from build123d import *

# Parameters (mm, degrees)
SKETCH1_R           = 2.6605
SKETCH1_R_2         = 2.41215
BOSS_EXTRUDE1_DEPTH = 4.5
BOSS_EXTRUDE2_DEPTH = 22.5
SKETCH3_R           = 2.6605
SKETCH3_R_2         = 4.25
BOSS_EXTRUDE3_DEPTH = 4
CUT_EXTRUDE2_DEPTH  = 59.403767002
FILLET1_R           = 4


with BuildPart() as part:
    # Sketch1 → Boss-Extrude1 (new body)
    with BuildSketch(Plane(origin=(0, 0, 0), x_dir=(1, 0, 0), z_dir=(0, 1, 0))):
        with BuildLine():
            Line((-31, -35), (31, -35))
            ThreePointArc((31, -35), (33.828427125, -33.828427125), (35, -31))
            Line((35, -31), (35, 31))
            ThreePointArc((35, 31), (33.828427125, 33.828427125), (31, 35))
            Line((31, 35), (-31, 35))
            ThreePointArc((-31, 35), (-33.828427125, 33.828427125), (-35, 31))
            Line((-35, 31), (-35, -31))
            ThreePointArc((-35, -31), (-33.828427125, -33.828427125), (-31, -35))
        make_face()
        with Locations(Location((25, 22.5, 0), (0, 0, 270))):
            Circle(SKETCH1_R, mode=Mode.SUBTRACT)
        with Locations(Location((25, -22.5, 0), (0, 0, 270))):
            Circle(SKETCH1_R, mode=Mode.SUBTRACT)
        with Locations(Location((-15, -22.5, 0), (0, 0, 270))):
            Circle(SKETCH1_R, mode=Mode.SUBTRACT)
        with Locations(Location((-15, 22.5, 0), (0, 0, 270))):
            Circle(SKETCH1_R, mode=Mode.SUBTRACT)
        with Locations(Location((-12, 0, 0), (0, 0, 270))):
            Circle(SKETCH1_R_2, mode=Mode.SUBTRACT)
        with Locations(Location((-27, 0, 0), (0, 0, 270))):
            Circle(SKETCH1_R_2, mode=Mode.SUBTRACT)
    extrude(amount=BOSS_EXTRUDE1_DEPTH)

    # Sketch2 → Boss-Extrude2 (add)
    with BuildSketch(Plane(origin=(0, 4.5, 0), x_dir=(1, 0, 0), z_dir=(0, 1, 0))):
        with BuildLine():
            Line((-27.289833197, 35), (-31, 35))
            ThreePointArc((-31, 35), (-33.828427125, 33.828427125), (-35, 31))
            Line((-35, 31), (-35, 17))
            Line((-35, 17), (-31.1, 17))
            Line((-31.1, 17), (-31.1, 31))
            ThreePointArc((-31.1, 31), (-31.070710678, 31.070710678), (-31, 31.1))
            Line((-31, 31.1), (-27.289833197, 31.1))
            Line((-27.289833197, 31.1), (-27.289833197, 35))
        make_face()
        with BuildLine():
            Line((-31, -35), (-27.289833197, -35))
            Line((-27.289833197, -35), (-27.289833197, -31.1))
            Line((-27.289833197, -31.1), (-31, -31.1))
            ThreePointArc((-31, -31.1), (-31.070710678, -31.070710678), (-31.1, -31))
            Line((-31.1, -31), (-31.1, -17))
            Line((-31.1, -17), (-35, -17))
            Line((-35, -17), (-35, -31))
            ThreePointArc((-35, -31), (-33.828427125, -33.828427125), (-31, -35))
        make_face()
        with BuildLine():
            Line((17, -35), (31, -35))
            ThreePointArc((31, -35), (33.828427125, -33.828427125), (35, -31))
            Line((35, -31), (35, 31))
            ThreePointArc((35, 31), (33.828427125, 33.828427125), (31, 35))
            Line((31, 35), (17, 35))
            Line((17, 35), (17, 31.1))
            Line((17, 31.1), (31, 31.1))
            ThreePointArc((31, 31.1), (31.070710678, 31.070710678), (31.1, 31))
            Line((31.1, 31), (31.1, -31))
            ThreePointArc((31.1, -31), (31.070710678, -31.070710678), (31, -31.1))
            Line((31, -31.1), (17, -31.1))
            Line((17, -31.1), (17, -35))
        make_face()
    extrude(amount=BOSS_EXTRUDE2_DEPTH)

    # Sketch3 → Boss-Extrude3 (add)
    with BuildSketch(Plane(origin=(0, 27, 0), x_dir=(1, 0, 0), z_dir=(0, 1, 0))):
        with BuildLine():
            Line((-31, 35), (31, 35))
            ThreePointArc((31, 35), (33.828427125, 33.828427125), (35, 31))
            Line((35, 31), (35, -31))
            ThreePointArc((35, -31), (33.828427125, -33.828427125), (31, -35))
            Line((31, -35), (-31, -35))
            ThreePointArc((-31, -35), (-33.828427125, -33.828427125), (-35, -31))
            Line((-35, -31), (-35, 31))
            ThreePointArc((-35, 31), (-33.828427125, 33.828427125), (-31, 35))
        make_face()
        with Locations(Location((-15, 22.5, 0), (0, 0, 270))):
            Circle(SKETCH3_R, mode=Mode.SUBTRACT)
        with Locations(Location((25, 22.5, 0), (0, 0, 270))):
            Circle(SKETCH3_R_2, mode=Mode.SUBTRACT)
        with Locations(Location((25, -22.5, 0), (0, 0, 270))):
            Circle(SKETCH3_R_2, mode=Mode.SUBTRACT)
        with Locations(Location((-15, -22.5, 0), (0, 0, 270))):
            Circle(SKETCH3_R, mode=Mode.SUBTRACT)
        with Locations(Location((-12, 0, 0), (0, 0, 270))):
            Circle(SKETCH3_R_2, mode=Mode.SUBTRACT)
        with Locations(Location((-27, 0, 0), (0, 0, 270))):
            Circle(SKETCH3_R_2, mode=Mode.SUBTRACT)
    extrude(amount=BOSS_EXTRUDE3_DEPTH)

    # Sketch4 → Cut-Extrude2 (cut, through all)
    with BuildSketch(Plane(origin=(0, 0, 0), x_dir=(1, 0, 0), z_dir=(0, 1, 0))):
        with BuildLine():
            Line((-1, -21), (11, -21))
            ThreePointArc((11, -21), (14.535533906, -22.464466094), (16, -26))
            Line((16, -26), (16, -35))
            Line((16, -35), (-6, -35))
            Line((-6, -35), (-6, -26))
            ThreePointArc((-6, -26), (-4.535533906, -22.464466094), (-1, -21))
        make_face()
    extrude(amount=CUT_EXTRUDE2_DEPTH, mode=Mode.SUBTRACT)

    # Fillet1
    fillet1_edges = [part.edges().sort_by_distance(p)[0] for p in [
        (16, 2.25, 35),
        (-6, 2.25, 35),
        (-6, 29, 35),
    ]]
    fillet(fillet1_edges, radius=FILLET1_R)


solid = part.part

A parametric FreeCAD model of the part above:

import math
import FreeCAD as App
import Part
import Sketcher
from FreeCAD import Vector


def edges_at(feature, points):
    """Names of the edges that pass closest to the given points."""
    edges = feature.Shape.Edges
    near = lambda p: min(range(len(edges)), key=lambda i: edges[i].distToShape(Part.Vertex(*p))[0])
    return sorted({f"Edge{near(p) + 1}" for p in points})

doc = App.newDocument("Part")
body = doc.addObject("PartDesign::Body", "Body")

# Sketch on XZ plane
sketch1 = body.newObject("Sketcher::SketchObject", "Sketch")
sketch1.AttachmentSupport = (doc.getObject("XZ_Plane"), [""])
sketch1.MapMode = "FlatFace"
sketch1.addGeometry(Part.LineSegment(Vector(-31, 35, 0), Vector(31, 35, 0)), False)
sketch1.addGeometry(Part.ArcOfCircle(Part.Circle(Vector(31, 31, 0), Vector(0, 0, 1), 4), math.radians(0), math.radians(90)), False)
sketch1.addGeometry(Part.LineSegment(Vector(35, 31, 0), Vector(35, -31, 0)), False)
sketch1.addGeometry(Part.ArcOfCircle(Part.Circle(Vector(31, -31, 0), Vector(0, 0, 1), 4), math.radians(-90), math.radians(0)), False)
sketch1.addGeometry(Part.LineSegment(Vector(31, -35, 0), Vector(-31, -35, 0)), False)
sketch1.addGeometry(Part.ArcOfCircle(Part.Circle(Vector(-31, -31, 0), Vector(0, 0, 1), 4), math.radians(180), math.radians(270)), False)
sketch1.addGeometry(Part.LineSegment(Vector(-35, -31, 0), Vector(-35, 31, 0)), False)
sketch1.addGeometry(Part.ArcOfCircle(Part.Circle(Vector(-31, 31, 0), Vector(0, 0, 1), 4), math.radians(90), math.radians(180)), False)
sketch1.addGeometry(Part.Circle(Vector(-15, 22.5, 0), Vector(0, 0, 1), 2.7), False)
sketch1.addGeometry(Part.Circle(Vector(25, 22.5, 0), Vector(0, 0, 1), 2.7), False)
sketch1.addGeometry(Part.Circle(Vector(-27, 0, 0), Vector(0, 0, 1), 2.4), False)
sketch1.addGeometry(Part.Circle(Vector(-12, 0, 0), Vector(0, 0, 1), 2.4), False)
sketch1.addGeometry(Part.Circle(Vector(-15, -22.5, 0), Vector(0, 0, 1), 2.7), False)
sketch1.addGeometry(Part.Circle(Vector(25, -22.5, 0), Vector(0, 0, 1), 2.7), False)
sketch1.addConstraint(Sketcher.Constraint("Tangent", 0, 2, 1, 2))
sketch1.addConstraint(Sketcher.Constraint("Tangent", 1, 1, 2, 1))
sketch1.addConstraint(Sketcher.Constraint("Tangent", 2, 2, 3, 2))
sketch1.addConstraint(Sketcher.Constraint("Tangent", 3, 1, 4, 1))
sketch1.addConstraint(Sketcher.Constraint("Tangent", 4, 2, 5, 2))
sketch1.addConstraint(Sketcher.Constraint("Tangent", 5, 1, 6, 1))
sketch1.addConstraint(Sketcher.Constraint("Tangent", 6, 2, 7, 2))
sketch1.addConstraint(Sketcher.Constraint("Tangent", 7, 1, 0, 1))
sketch1.addConstraint(Sketcher.Constraint("Horizontal", 0))
sketch1.addConstraint(Sketcher.Constraint("Vertical", 2))
sketch1.addConstraint(Sketcher.Constraint("Horizontal", 4))
sketch1.addConstraint(Sketcher.Constraint("Vertical", 6))
sketch1.addConstraint(Sketcher.Constraint("Equal", 1, 3))
sketch1.addConstraint(Sketcher.Constraint("Equal", 3, 5))
sketch1.addConstraint(Sketcher.Constraint("Equal", 5, 7))
sketch1.addConstraint(Sketcher.Constraint("Equal", 8, 9))
sketch1.addConstraint(Sketcher.Constraint("Equal", 10, 11))
sketch1.addConstraint(Sketcher.Constraint("Equal", 9, 12))
sketch1.addConstraint(Sketcher.Constraint("Equal", 12, 13))
sketch1.addConstraint(Sketcher.Constraint("Symmetric", 1, 3, 5, 3, -1, 1))
sketch1.addConstraint(Sketcher.Constraint("Symmetric", 8, 3, 12, 3, -1))
sketch1.addConstraint(Sketcher.Constraint("Symmetric", 9, 3, 13, 3, -1))
sketch1.addConstraint(Sketcher.Constraint("PointOnObject", 10, 3, -1))
sketch1.addConstraint(Sketcher.Constraint("PointOnObject", 11, 3, -1))
sketch1.addConstraint(Sketcher.Constraint("Horizontal", 8, 3, 9, 3))
sketch1.addConstraint(Sketcher.Constraint("Equal", 4, 2))
sketch1.addConstraint(Sketcher.Constraint("Radius", 1, 4.0))
sketch1.addConstraint(Sketcher.Constraint("DistanceX", 0, 1, 0, 2, 62.0))
sketch1.addConstraint(Sketcher.Constraint("Diameter", 8, 5.321))
sketch1.addConstraint(Sketcher.Constraint("DistanceX", 8, 3, -1, 1, 15.0))
sketch1.addConstraint(Sketcher.Constraint("DistanceX", -1, 1, 9, 3, 25.0))
sketch1.addConstraint(Sketcher.Constraint("DistanceX", 10, 3, -1, 1, 27.0))
sketch1.addConstraint(Sketcher.Constraint("DistanceX", 11, 3, -1, 1, 12.0))
sketch1.addConstraint(Sketcher.Constraint("DistanceY", 12, 3, 8, 3, 45.0))
sketch1.addConstraint(Sketcher.Constraint("Diameter", 10, 4.8243))
pad1 = body.newObject("PartDesign::Pad", "Pad")
pad1.Profile = sketch1
pad1.Length = 4.5
pad1.Reversed = True

# Sketch on XZ plane
sketch2 = body.newObject("Sketcher::SketchObject", "Sketch001")
sketch2.AttachmentSupport = (doc.getObject("XZ_Plane"), [""])
sketch2.MapMode = "FlatFace"
sketch2.AttachmentOffset = App.Placement(Vector(0, 0, -4.5), App.Rotation())
sketch2.addGeometry(Part.LineSegment(Vector(-27.29, -35, 0), Vector(-31, -35, 0)), False)
sketch2.addGeometry(Part.ArcOfCircle(Part.Circle(Vector(-31, -31, 0), Vector(0, 0, 1), 4), math.radians(180), math.radians(270)), False)
sketch2.addGeometry(Part.LineSegment(Vector(-35, -31, 0), Vector(-35, -17, 0)), False)
sketch2.addGeometry(Part.LineSegment(Vector(-35, -17, 0), Vector(-31.1, -17, 0)), False)
sketch2.addGeometry(Part.LineSegment(Vector(-31.1, -17, 0), Vector(-31.1, -31, 0)), False)
sketch2.addGeometry(Part.ArcOfCircle(Part.Circle(Vector(-31, -31, 0), Vector(0, 0, 1), 0.1), math.radians(180), math.radians(270)), False)
sketch2.addGeometry(Part.LineSegment(Vector(-31, -31.1, 0), Vector(-27.29, -31.1, 0)), False)
sketch2.addGeometry(Part.LineSegment(Vector(-27.29, -31.1, 0), Vector(-27.29, -35, 0)), False)
sketch2.addGeometry(Part.LineSegment(Vector(-31, 35, 0), Vector(-27.29, 35, 0)), False)
sketch2.addGeometry(Part.LineSegment(Vector(-27.29, 35, 0), Vector(-27.29, 31.1, 0)), False)
sketch2.addGeometry(Part.LineSegment(Vector(-27.29, 31.1, 0), Vector(-31, 31.1, 0)), False)
sketch2.addGeometry(Part.ArcOfCircle(Part.Circle(Vector(-31, 31, 0), Vector(0, 0, 1), 0.1), math.radians(90), math.radians(180)), False)
sketch2.addGeometry(Part.LineSegment(Vector(-31.1, 31, 0), Vector(-31.1, 17, 0)), False)
sketch2.addGeometry(Part.LineSegment(Vector(-31.1, 17, 0), Vector(-35, 17, 0)), False)
sketch2.addGeometry(Part.LineSegment(Vector(-35, 17, 0), Vector(-35, 31, 0)), False)
sketch2.addGeometry(Part.ArcOfCircle(Part.Circle(Vector(-31, 31, 0), Vector(0, 0, 1), 4), math.radians(90), math.radians(180)), False)
sketch2.addGeometry(Part.LineSegment(Vector(17, 35, 0), Vector(31, 35, 0)), False)
sketch2.addGeometry(Part.ArcOfCircle(Part.Circle(Vector(31, 31, 0), Vector(0, 0, 1), 4), math.radians(0), math.radians(90)), False)
sketch2.addGeometry(Part.LineSegment(Vector(35, 31, 0), Vector(35, -31, 0)), False)
sketch2.addGeometry(Part.ArcOfCircle(Part.Circle(Vector(31, -31, 0), Vector(0, 0, 1), 4), math.radians(-90), math.radians(0)), False)
sketch2.addGeometry(Part.LineSegment(Vector(31, -35, 0), Vector(17, -35, 0)), False)
sketch2.addGeometry(Part.LineSegment(Vector(17, -35, 0), Vector(17, -31.1, 0)), False)
sketch2.addGeometry(Part.LineSegment(Vector(17, -31.1, 0), Vector(31, -31.1, 0)), False)
sketch2.addGeometry(Part.ArcOfCircle(Part.Circle(Vector(31, -31, 0), Vector(0, 0, 1), 0.1), math.radians(-90), math.radians(0)), False)
sketch2.addGeometry(Part.LineSegment(Vector(31.1, -31, 0), Vector(31.1, 31, 0)), False)
sketch2.addGeometry(Part.ArcOfCircle(Part.Circle(Vector(31, 31, 0), Vector(0, 0, 1), 0.1), math.radians(0), math.radians(90)), False)
sketch2.addGeometry(Part.LineSegment(Vector(31, 31.1, 0), Vector(17, 31.1, 0)), False)
sketch2.addGeometry(Part.LineSegment(Vector(17, 31.1, 0), Vector(17, 35, 0)), False)
sketch2.addConstraint(Sketcher.Constraint("Tangent", 0, 2, 1, 2))
sketch2.addConstraint(Sketcher.Constraint("Tangent", 1, 1, 2, 1))
sketch2.addConstraint(Sketcher.Constraint("Coincident", 2, 2, 3, 1))
sketch2.addConstraint(Sketcher.Constraint("Coincident", 3, 2, 4, 1))
sketch2.addConstraint(Sketcher.Constraint("Tangent", 4, 2, 5, 1))
sketch2.addConstraint(Sketcher.Constraint("Tangent", 5, 2, 6, 1))
sketch2.addConstraint(Sketcher.Constraint("Coincident", 6, 2, 7, 1))
sketch2.addConstraint(Sketcher.Constraint("Coincident", 7, 2, 0, 1))
sketch2.addConstraint(Sketcher.Constraint("Coincident", 8, 2, 9, 1))
sketch2.addConstraint(Sketcher.Constraint("Coincident", 9, 2, 10, 1))
sketch2.addConstraint(Sketcher.Constraint("Tangent", 10, 2, 11, 1))
sketch2.addConstraint(Sketcher.Constraint("Tangent", 11, 2, 12, 1))
sketch2.addConstraint(Sketcher.Constraint("Coincident", 12, 2, 13, 1))
sketch2.addConstraint(Sketcher.Constraint("Coincident", 13, 2, 14, 1))
sketch2.addConstraint(Sketcher.Constraint("Tangent", 14, 2, 15, 2))
sketch2.addConstraint(Sketcher.Constraint("Tangent", 15, 1, 8, 1))
sketch2.addConstraint(Sketcher.Constraint("Tangent", 16, 2, 17, 2))
sketch2.addConstraint(Sketcher.Constraint("Tangent", 17, 1, 18, 1))
sketch2.addConstraint(Sketcher.Constraint("Tangent", 18, 2, 19, 2))
sketch2.addConstraint(Sketcher.Constraint("Tangent", 19, 1, 20, 1))
sketch2.addConstraint(Sketcher.Constraint("Coincident", 20, 2, 21, 1))
sketch2.addConstraint(Sketcher.Constraint("Coincident", 21, 2, 22, 1))
sketch2.addConstraint(Sketcher.Constraint("Tangent", 22, 2, 23, 1))
sketch2.addConstraint(Sketcher.Constraint("Tangent", 23, 2, 24, 1))
sketch2.addConstraint(Sketcher.Constraint("Tangent", 24, 2, 25, 1))
sketch2.addConstraint(Sketcher.Constraint("Tangent", 25, 2, 26, 1))
sketch2.addConstraint(Sketcher.Constraint("Coincident", 26, 2, 27, 1))
sketch2.addConstraint(Sketcher.Constraint("Coincident", 27, 2, 16, 1))
sketch2.addConstraint(Sketcher.Constraint("Horizontal", 0))
sketch2.addConstraint(Sketcher.Constraint("Vertical", 2))
sketch2.addConstraint(Sketcher.Constraint("Horizontal", 3))
sketch2.addConstraint(Sketcher.Constraint("Vertical", 4))
sketch2.addConstraint(Sketcher.Constraint("Horizontal", 6))
sketch2.addConstraint(Sketcher.Constraint("Vertical", 7))
sketch2.addConstraint(Sketcher.Constraint("Horizontal", 8))
sketch2.addConstraint(Sketcher.Constraint("Vertical", 9))
sketch2.addConstraint(Sketcher.Constraint("Horizontal", 10))
sketch2.addConstraint(Sketcher.Constraint("Vertical", 12))
sketch2.addConstraint(Sketcher.Constraint("Horizontal", 13))
sketch2.addConstraint(Sketcher.Constraint("Vertical", 14))
sketch2.addConstraint(Sketcher.Constraint("Horizontal", 16))
sketch2.addConstraint(Sketcher.Constraint("Vertical", 18))
sketch2.addConstraint(Sketcher.Constraint("Horizontal", 20))
sketch2.addConstraint(Sketcher.Constraint("Vertical", 21))
sketch2.addConstraint(Sketcher.Constraint("Horizontal", 22))
sketch2.addConstraint(Sketcher.Constraint("Vertical", 24))
sketch2.addConstraint(Sketcher.Constraint("Horizontal", 26))
sketch2.addConstraint(Sketcher.Constraint("Vertical", 27))
sketch2.addConstraint(Sketcher.Constraint("Coincident", 5, 3, 1, 3))
sketch2.addConstraint(Sketcher.Constraint("Coincident", 15, 3, 11, 3))
sketch2.addConstraint(Sketcher.Constraint("Coincident", 23, 3, 19, 3))
sketch2.addConstraint(Sketcher.Constraint("Coincident", 25, 3, 17, 3))
sketch2.addConstraint(Sketcher.Constraint("Equal", 5, 11))
sketch2.addConstraint(Sketcher.Constraint("Equal", 1, 15))
sketch2.addConstraint(Sketcher.Constraint("Equal", 15, 17))
sketch2.addConstraint(Sketcher.Constraint("Equal", 17, 19))
sketch2.addConstraint(Sketcher.Constraint("Equal", 11, 23))
sketch2.addConstraint(Sketcher.Constraint("Symmetric", 1, 3, 17, 3, -1, 1))
sketch2.addConstraint(Sketcher.Constraint("Symmetric", 11, 3, 19, 3, -1, 1))
sketch2.addConstraint(Sketcher.Constraint("Symmetric", 7, 2, 8, 2, -1))
sketch2.addConstraint(Sketcher.Constraint("Vertical", 21, 2, 26, 2))
sketch2.addConstraint(Sketcher.Constraint("Equal", 26, 2))
sketch2.addConstraint(Sketcher.Constraint("Equal", 4, 12))
sketch2.addConstraint(Sketcher.Constraint("Radius", 1, 4.0))
sketch2.addConstraint(Sketcher.Constraint("Radius", 5, 0.1))
sketch2.addConstraint(Sketcher.Constraint("DistanceX", 16, 1, 16, 2, 14.0))
sketch2.addConstraint(Sketcher.Constraint("DistanceY", 18, 2, 18, 1, 62.0))
sketch2.addConstraint(Sketcher.Constraint("DistanceX", 1, 3, -1, 1, 31.0))
sketch2.addConstraint(Sketcher.Constraint("DistanceX", 0, 2, 0, 1, 3.710167))
pad2 = body.newObject("PartDesign::Pad", "Pad001")
pad2.Profile = sketch2
pad2.Length = 22.5
pad2.Reversed = True

# Sketch on XZ plane
sketch3 = body.newObject("Sketcher::SketchObject", "Sketch002")
sketch3.AttachmentSupport = (doc.getObject("XZ_Plane"), [""])
sketch3.MapMode = "FlatFace"
sketch3.AttachmentOffset = App.Placement(Vector(0, 0, -27), App.Rotation())
sketch3.addGeometry(Part.LineSegment(Vector(31, -35, 0), Vector(-31, -35, 0)), False)
sketch3.addGeometry(Part.ArcOfCircle(Part.Circle(Vector(-31, -31, 0), Vector(0, 0, 1), 4), math.radians(180), math.radians(270)), False)
sketch3.addGeometry(Part.LineSegment(Vector(-35, -31, 0), Vector(-35, 31, 0)), False)
sketch3.addGeometry(Part.ArcOfCircle(Part.Circle(Vector(-31, 31, 0), Vector(0, 0, 1), 4), math.radians(90), math.radians(180)), False)
sketch3.addGeometry(Part.LineSegment(Vector(-31, 35, 0), Vector(31, 35, 0)), False)
sketch3.addGeometry(Part.ArcOfCircle(Part.Circle(Vector(31, 31, 0), Vector(0, 0, 1), 4), math.radians(0), math.radians(90)), False)
sketch3.addGeometry(Part.LineSegment(Vector(35, 31, 0), Vector(35, -31, 0)), False)
sketch3.addGeometry(Part.ArcOfCircle(Part.Circle(Vector(31, -31, 0), Vector(0, 0, 1), 4), math.radians(-90), math.radians(0)), False)
sketch3.addGeometry(Part.Circle(Vector(25, 22.5, 0), Vector(0, 0, 1), 4.2), False)
sketch3.addGeometry(Part.Circle(Vector(-15, 22.5, 0), Vector(0, 0, 1), 2.7), False)
sketch3.addGeometry(Part.Circle(Vector(-12, 0, 0), Vector(0, 0, 1), 4.2), False)
sketch3.addGeometry(Part.Circle(Vector(-27, 0, 0), Vector(0, 0, 1), 4.2), False)
sketch3.addGeometry(Part.Circle(Vector(25, -22.5, 0), Vector(0, 0, 1), 4.2), False)
sketch3.addGeometry(Part.Circle(Vector(-15, -22.5, 0), Vector(0, 0, 1), 2.7), False)
sketch3.addConstraint(Sketcher.Constraint("Tangent", 0, 2, 1, 2))
sketch3.addConstraint(Sketcher.Constraint("Tangent", 1, 1, 2, 1))
sketch3.addConstraint(Sketcher.Constraint("Tangent", 2, 2, 3, 2))
sketch3.addConstraint(Sketcher.Constraint("Tangent", 3, 1, 4, 1))
sketch3.addConstraint(Sketcher.Constraint("Tangent", 4, 2, 5, 2))
sketch3.addConstraint(Sketcher.Constraint("Tangent", 5, 1, 6, 1))
sketch3.addConstraint(Sketcher.Constraint("Tangent", 6, 2, 7, 2))
sketch3.addConstraint(Sketcher.Constraint("Tangent", 7, 1, 0, 1))
sketch3.addConstraint(Sketcher.Constraint("Horizontal", 0))
sketch3.addConstraint(Sketcher.Constraint("Vertical", 2))
sketch3.addConstraint(Sketcher.Constraint("Horizontal", 4))
sketch3.addConstraint(Sketcher.Constraint("Vertical", 6))
sketch3.addConstraint(Sketcher.Constraint("Equal", 1, 3))
sketch3.addConstraint(Sketcher.Constraint("Equal", 3, 5))
sketch3.addConstraint(Sketcher.Constraint("Equal", 5, 7))
sketch3.addConstraint(Sketcher.Constraint("Equal", 8, 10))
sketch3.addConstraint(Sketcher.Constraint("Equal", 10, 11))
sketch3.addConstraint(Sketcher.Constraint("Equal", 11, 12))
sketch3.addConstraint(Sketcher.Constraint("Equal", 9, 13))
sketch3.addConstraint(Sketcher.Constraint("Symmetric", 1, 3, 5, 3, -1, 1))
sketch3.addConstraint(Sketcher.Constraint("Symmetric", 8, 3, 12, 3, -1))
sketch3.addConstraint(Sketcher.Constraint("Symmetric", 9, 3, 13, 3, -1))
sketch3.addConstraint(Sketcher.Constraint("PointOnObject", 10, 3, -1))
sketch3.addConstraint(Sketcher.Constraint("PointOnObject", 11, 3, -1))
sketch3.addConstraint(Sketcher.Constraint("Horizontal", 8, 3, 9, 3))
sketch3.addConstraint(Sketcher.Constraint("Equal", 4, 2))
sketch3.addConstraint(Sketcher.Constraint("Radius", 1, 4.0))
sketch3.addConstraint(Sketcher.Constraint("Diameter", 8, 8.5))
sketch3.addConstraint(Sketcher.Constraint("DistanceX", 0, 2, 0, 1, 62.0))
sketch3.addConstraint(Sketcher.Constraint("Diameter", 9, 5.321))
sketch3.addConstraint(Sketcher.Constraint("DistanceX", -1, 1, 8, 3, 25.0))
sketch3.addConstraint(Sketcher.Constraint("DistanceX", 9, 3, -1, 1, 15.0))
sketch3.addConstraint(Sketcher.Constraint("DistanceX", 10, 3, -1, 1, 12.0))
sketch3.addConstraint(Sketcher.Constraint("DistanceX", 11, 3, -1, 1, 27.0))
sketch3.addConstraint(Sketcher.Constraint("DistanceY", 12, 3, 8, 3, 45.0))
pad3 = body.newObject("PartDesign::Pad", "Pad002")
pad3.Profile = sketch3
pad3.Length = 4
pad3.Reversed = True

# Sketch on XZ plane
sketch4 = body.newObject("Sketcher::SketchObject", "Sketch003")
sketch4.AttachmentSupport = (doc.getObject("XZ_Plane"), [""])
sketch4.MapMode = "FlatFace"
sketch4.addGeometry(Part.LineSegment(Vector(11, 21, 0), Vector(-1, 21, 0)), False)
sketch4.addGeometry(Part.ArcOfCircle(Part.Circle(Vector(-1, 26, 0), Vector(0, 0, 1), 5), math.radians(180), math.radians(270)), False)
sketch4.addGeometry(Part.LineSegment(Vector(-6, 26, 0), Vector(-6, 35, 0)), False)
sketch4.addGeometry(Part.LineSegment(Vector(-6, 35, 0), Vector(16, 35, 0)), False)
sketch4.addGeometry(Part.LineSegment(Vector(16, 35, 0), Vector(16, 26, 0)), False)
sketch4.addGeometry(Part.ArcOfCircle(Part.Circle(Vector(11, 26, 0), Vector(0, 0, 1), 5), math.radians(-90), math.radians(0)), False)
sketch4.addConstraint(Sketcher.Constraint("Tangent", 0, 2, 1, 2))
sketch4.addConstraint(Sketcher.Constraint("Tangent", 1, 1, 2, 1))
sketch4.addConstraint(Sketcher.Constraint("Coincident", 2, 2, 3, 1))
sketch4.addConstraint(Sketcher.Constraint("Coincident", 3, 2, 4, 1))
sketch4.addConstraint(Sketcher.Constraint("Tangent", 4, 2, 5, 2))
sketch4.addConstraint(Sketcher.Constraint("Tangent", 5, 1, 0, 1))
sketch4.addConstraint(Sketcher.Constraint("Horizontal", 0))
sketch4.addConstraint(Sketcher.Constraint("Vertical", 2))
sketch4.addConstraint(Sketcher.Constraint("Horizontal", 3))
sketch4.addConstraint(Sketcher.Constraint("Vertical", 4))
sketch4.addConstraint(Sketcher.Constraint("Equal", 1, 5))
sketch4.addConstraint(Sketcher.Constraint("Radius", 1, 5.0))
sketch4.addConstraint(Sketcher.Constraint("DistanceX", 0, 2, 0, 1, 12.0))
sketch4.addConstraint(Sketcher.Constraint("DistanceY", 2, 1, 2, 2, 9.0))
sketch4.addConstraint(Sketcher.Constraint("DistanceX", 1, 3, -1, 1, 1.0))
sketch4.addConstraint(Sketcher.Constraint("DistanceY", -1, 1, 1, 3, 26.0))
pocket1 = body.newObject("PartDesign::Pocket", "Pocket")
pocket1.Profile = sketch4
pocket1.Type = "ThroughAll"
doc.recompute()

fillet = body.newObject("PartDesign::Fillet", "Fillet")
fillet.Base = (pocket1, edges_at(pocket1, [(16, 2.25, 35), (-6, 2.25, 35), (-6, 29, 35)]))
fillet.Radius = 4

doc.recompute()
